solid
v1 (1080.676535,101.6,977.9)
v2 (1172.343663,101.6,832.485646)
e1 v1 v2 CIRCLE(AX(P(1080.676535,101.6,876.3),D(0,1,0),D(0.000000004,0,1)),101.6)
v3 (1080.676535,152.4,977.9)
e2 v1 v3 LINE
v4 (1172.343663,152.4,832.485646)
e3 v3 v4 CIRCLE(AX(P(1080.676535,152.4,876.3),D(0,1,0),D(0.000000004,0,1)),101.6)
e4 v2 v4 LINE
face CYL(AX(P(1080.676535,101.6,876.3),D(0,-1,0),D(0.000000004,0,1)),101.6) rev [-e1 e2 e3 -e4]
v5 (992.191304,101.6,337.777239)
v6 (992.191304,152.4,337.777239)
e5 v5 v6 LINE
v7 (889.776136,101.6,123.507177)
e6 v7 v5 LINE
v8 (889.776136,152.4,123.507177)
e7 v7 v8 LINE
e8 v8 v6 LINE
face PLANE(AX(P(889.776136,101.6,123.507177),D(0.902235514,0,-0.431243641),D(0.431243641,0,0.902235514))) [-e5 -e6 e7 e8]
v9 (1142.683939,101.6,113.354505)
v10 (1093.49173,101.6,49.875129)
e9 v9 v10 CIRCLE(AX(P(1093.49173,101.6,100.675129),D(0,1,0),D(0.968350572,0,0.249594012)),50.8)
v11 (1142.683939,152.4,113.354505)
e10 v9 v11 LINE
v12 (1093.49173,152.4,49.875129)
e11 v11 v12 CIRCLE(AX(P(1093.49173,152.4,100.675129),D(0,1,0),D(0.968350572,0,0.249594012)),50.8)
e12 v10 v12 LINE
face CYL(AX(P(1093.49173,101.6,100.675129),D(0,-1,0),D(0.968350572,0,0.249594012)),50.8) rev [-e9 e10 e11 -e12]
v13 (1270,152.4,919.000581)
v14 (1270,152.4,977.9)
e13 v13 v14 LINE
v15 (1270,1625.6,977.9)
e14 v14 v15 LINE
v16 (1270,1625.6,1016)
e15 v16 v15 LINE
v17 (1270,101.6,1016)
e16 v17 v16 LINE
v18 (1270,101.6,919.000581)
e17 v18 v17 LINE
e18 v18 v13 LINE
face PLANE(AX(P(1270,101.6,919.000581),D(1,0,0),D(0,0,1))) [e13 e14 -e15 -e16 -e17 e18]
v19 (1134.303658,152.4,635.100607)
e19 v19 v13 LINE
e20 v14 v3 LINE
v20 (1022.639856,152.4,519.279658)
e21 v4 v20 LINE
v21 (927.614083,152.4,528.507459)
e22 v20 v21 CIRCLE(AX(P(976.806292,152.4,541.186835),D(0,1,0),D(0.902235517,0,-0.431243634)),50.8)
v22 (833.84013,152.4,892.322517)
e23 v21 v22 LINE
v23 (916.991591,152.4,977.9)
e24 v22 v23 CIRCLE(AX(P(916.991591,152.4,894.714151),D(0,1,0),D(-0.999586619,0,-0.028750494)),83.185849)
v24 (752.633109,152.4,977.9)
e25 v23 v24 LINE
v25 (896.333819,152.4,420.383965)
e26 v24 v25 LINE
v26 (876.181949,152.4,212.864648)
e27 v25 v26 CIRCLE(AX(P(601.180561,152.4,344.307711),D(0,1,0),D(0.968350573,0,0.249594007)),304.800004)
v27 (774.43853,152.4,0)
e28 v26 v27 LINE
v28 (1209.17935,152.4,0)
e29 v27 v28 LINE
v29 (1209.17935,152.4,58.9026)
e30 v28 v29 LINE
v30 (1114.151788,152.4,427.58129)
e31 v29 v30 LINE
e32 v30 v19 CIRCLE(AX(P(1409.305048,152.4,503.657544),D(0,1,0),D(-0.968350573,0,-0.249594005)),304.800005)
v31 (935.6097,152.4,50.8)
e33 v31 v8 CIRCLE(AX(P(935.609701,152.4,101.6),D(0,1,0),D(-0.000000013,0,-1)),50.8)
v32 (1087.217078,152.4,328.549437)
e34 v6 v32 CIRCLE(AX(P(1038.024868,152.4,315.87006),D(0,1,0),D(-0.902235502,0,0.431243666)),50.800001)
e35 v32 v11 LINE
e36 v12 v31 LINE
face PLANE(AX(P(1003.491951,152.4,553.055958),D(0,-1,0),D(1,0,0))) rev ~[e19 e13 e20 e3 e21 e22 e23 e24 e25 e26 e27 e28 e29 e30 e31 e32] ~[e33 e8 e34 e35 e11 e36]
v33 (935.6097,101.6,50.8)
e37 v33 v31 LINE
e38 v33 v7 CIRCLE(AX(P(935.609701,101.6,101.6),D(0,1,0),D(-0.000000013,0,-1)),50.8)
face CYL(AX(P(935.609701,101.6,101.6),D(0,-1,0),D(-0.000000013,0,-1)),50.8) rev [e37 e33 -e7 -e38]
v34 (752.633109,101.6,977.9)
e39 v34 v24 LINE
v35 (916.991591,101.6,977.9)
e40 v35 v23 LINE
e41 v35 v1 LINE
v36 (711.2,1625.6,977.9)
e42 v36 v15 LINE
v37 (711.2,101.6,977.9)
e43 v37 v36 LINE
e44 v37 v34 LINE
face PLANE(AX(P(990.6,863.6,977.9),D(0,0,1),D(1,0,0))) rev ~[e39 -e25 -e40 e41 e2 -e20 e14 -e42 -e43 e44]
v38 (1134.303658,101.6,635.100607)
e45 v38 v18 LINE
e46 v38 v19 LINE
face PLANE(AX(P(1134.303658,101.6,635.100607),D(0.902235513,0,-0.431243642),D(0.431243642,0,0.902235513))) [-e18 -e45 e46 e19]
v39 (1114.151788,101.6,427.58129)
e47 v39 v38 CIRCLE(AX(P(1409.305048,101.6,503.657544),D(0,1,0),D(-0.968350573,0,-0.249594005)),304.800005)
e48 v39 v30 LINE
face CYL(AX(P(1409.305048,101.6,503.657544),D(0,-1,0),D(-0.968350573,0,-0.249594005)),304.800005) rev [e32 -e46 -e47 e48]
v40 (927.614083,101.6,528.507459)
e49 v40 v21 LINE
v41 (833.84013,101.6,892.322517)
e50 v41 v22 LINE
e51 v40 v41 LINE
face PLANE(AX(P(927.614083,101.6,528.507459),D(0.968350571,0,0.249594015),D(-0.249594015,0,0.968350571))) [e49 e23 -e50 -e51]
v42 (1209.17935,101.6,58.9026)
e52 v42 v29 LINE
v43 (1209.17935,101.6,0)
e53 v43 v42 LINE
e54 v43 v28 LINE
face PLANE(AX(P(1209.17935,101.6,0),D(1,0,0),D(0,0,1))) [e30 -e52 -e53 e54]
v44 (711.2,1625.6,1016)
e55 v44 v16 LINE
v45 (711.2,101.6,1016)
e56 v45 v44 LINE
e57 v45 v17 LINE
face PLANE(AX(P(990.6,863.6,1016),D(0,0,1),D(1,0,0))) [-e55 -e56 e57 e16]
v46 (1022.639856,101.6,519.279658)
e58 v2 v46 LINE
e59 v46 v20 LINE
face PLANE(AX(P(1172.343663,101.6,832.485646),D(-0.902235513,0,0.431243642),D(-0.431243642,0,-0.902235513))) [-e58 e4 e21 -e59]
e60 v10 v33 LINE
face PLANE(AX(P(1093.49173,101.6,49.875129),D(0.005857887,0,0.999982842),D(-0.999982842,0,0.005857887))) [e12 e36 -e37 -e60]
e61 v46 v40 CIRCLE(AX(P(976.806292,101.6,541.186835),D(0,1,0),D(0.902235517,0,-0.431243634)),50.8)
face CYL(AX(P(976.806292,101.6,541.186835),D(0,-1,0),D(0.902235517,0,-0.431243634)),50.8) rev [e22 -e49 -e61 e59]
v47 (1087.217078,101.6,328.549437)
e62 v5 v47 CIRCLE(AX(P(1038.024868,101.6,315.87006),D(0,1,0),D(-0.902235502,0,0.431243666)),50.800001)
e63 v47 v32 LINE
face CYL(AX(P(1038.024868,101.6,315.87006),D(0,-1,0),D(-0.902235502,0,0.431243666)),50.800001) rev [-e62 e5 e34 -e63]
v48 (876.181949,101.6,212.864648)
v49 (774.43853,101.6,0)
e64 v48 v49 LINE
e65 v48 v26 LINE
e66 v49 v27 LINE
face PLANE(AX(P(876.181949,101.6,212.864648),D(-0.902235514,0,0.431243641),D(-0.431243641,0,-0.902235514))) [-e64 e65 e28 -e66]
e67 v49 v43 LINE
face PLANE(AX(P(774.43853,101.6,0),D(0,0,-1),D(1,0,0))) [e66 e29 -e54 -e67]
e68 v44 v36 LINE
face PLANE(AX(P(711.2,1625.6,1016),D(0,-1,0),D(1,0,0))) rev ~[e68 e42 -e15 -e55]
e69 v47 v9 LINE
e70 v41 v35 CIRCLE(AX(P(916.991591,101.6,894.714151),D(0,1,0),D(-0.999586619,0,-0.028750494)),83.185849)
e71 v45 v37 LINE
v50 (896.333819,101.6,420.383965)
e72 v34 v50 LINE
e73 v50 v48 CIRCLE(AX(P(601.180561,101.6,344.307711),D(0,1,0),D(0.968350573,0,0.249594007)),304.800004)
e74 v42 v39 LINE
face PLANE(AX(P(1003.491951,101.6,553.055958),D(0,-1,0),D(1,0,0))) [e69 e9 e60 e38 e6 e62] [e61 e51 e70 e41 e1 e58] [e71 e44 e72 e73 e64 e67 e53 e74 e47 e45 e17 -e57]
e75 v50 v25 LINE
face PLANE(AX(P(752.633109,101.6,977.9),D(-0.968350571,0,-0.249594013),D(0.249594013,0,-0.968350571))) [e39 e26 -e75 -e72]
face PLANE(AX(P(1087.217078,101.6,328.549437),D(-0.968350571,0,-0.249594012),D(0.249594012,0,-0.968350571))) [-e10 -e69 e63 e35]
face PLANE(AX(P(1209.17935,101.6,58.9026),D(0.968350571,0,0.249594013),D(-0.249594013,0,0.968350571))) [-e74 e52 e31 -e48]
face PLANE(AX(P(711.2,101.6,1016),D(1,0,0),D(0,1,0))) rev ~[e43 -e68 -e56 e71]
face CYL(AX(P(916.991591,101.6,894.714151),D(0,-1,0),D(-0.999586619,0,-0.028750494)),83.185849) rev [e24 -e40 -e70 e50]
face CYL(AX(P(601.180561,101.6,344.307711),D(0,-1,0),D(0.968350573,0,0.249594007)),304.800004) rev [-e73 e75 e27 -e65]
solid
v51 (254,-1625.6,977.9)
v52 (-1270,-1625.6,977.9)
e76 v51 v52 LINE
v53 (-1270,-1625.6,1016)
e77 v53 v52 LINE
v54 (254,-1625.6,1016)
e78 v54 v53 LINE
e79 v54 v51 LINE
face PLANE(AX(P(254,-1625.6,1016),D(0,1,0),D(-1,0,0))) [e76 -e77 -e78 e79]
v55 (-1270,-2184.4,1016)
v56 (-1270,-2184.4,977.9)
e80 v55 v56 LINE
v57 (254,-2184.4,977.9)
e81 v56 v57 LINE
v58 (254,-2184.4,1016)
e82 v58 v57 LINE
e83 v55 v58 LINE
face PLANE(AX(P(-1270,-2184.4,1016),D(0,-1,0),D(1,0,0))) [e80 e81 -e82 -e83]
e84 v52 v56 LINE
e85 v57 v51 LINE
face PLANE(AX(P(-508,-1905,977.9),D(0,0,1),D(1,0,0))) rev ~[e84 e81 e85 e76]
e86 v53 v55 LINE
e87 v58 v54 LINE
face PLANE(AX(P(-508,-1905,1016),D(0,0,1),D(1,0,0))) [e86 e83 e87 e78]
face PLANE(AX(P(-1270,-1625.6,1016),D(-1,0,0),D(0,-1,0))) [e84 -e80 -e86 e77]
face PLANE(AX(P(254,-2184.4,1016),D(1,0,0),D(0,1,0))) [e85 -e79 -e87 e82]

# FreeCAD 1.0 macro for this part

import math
import FreeCAD as App
import Part
import Sketcher
from FreeCAD import Vector
Q = App.Units.Quantity

doc = App.newDocument("Part")
body = doc.addObject("PartDesign::Body", "Body")
body.AllowCompound = True

# Sketch on XY plane
sketch1 = body.newObject("Sketcher::SketchObject", "Sketch")
sketch1.AttachmentSupport = (doc.getObject("XY_Plane"), [""])
sketch1.MapMode = "FlatFace"
sketch1.AttachmentOffset = App.Placement(Vector(0, 0, 40 * 25.4), App.Rotation())
sketch1.addGeometry([
    Part.LineSegment(Vector(254, -1625.6, 0), Vector(-1270, -1625.6, 0)),  # 0
    Part.LineSegment(Vector(-1270, -1625.6, 0), Vector(-1270, -2184.4, 0)),  # 1
    Part.LineSegment(Vector(-1270, -2184.4, 0), Vector(254, -2184.4, 0)),  # 2
    Part.LineSegment(Vector(254, -2184.4, 0), Vector(254, -1625.6, 0)),  # 3
    Part.LineSegment(Vector(711.2, 1625.6, 0), Vector(711.2, 101.6, 0)),  # 4
    Part.LineSegment(Vector(711.2, 101.6, 0), Vector(1270, 101.6, 0)),  # 5
    Part.LineSegment(Vector(1270, 101.6, 0), Vector(1270, 1625.6, 0)),  # 6
    Part.LineSegment(Vector(1270, 1625.6, 0), Vector(711.2, 1625.6, 0)),  # 7
], False)
sketch1.addConstraint([
    Sketcher.Constraint("Coincident", 0, 2, 1, 1),
    Sketcher.Constraint("Coincident", 1, 2, 2, 1),
    Sketcher.Constraint("Coincident", 2, 2, 3, 1),
    Sketcher.Constraint("Coincident", 3, 2, 0, 1),
    Sketcher.Constraint("Coincident", 4, 2, 5, 1),
    Sketcher.Constraint("Coincident", 5, 2, 6, 1),
    Sketcher.Constraint("Coincident", 6, 2, 7, 1),
    Sketcher.Constraint("Coincident", 7, 2, 4, 1),
    Sketcher.Constraint("Horizontal", 0),
    Sketcher.Constraint("Vertical", 1),
    Sketcher.Constraint("Horizontal", 2),
    Sketcher.Constraint("Vertical", 3),
    Sketcher.Constraint("Vertical", 4),
    Sketcher.Constraint("Horizontal", 5),
    Sketcher.Constraint("Vertical", 6),
    Sketcher.Constraint("Horizontal", 7),
    Sketcher.Constraint("Symmetric", 0, 2, 6, 2, -1, 1),
    Sketcher.Constraint("Equal", 7, 1),
    Sketcher.Constraint("Equal", 2, 4),
    Sketcher.Constraint("DistanceX", 0, 2, 0, 1, Q("60 in")),
    Sketcher.Constraint("DistanceX", 5, 1, 5, 2, Q("22 in")),
    Sketcher.Constraint("DistanceX", 0, 2, -1, 1, Q("50 in")),
    Sketcher.Constraint("DistanceY", 0, 2, -1, 1, Q("64 in")),
])
pad1 = body.newObject("PartDesign::Pad", "Pad")
pad1.Profile = sketch1
pad1.Length = Q("1.5 in")
pad1.Reversed = True

# Sketch on XZ plane
sketch2 = body.newObject("Sketcher::SketchObject", "Sketch001")
sketch2.AttachmentSupport = (doc.getObject("XZ_Plane"), [""])
sketch2.MapMode = "FlatFace"
sketch2.AttachmentOffset = App.Placement(Vector(0, 0, -4 * 25.4), App.Rotation())
sketch2.addGeometry([
    Part.LineSegment(Vector(774.43853, 0, 0), Vector(1209.17935, 0, 0)),  # 0
    Part.LineSegment(Vector(1209.17935, 0, 0), Vector(1209.17935, 58.9026, 0)),  # 1
    Part.LineSegment(Vector(1209.17935, 58.9026, 0), Vector(1114.151788, 427.58129, 0)),  # 2
    Part.ArcOfCircle(Part.Circle(Vector(1409.305048, 503.657544, 0), Vector(0, 0, 1), 304.800005), math.radians(154.45349), math.radians(194.453489)),  # 3
    Part.LineSegment(Vector(1134.303658, 635.100607, 0), Vector(1270, 919.000581, 0)),  # 4
    Part.LineSegment(Vector(1270, 919.000581, 0), Vector(1270, 977.9, 0)),  # 5
    Part.LineSegment(Vector(1270, 977.9, 0), Vector(1080.676535, 977.9, 0)),  # 6
    Part.ArcOfCircle(Part.Circle(Vector(1080.676535, 876.3, 0), Vector(0, 0, 1), 101.6), math.radians(-25.546511), math.radians(90)),  # 7
    Part.LineSegment(Vector(1172.343663, 832.485646, 0), Vector(1022.639856, 519.279658, 0)),  # 8
    Part.ArcOfCircle(Part.Circle(Vector(976.806292, 541.186835, 0), Vector(0, 0, 1), 50.8), math.radians(-165.546511), math.radians(-25.54651)),  # 9
    Part.LineSegment(Vector(927.614083, 528.507459, 0), Vector(833.84013, 892.322517, 0)),  # 10
    Part.ArcOfCircle(Part.Circle(Vector(916.991591, 894.714151, 0), Vector(0, 0, 1), 83.185849), math.radians(90), math.radians(181.647509)),  # 11
    Part.LineSegment(Vector(916.991591, 977.9, 0), Vector(752.633109, 977.9, 0)),  # 12
    Part.LineSegment(Vector(752.633109, 977.9, 0), Vector(896.333819, 420.383965, 0)),  # 13
    Part.ArcOfCircle(Part.Circle(Vector(601.180561, 344.307711, 0), Vector(0, 0, 1), 304.800004), math.radians(-25.546511), math.radians(14.453489)),  # 14
    Part.LineSegment(Vector(876.181949, 212.864648, 0), Vector(774.43853, 0, 0)),  # 15
    Part.ArcOfCircle(Part.Circle(Vector(1038.024868, 315.87006, 0), Vector(0, 0, 1), 50.800001), math.radians(14.45349), math.radians(154.453488)),  # 16
    Part.LineSegment(Vector(1087.217078, 328.549437, 0), Vector(1142.683939, 113.354505, 0)),  # 17
    Part.ArcOfCircle(Part.Circle(Vector(1093.49173, 100.675129, 0), Vector(0, 0, 1), 50.8), math.radians(-90), math.radians(14.453489)),  # 18
    Part.LineSegment(Vector(1093.49173, 49.875129, 0), Vector(935.6097, 50.8, 0)),  # 19
    Part.ArcOfCircle(Part.Circle(Vector(935.609701, 101.6, 0), Vector(0, 0, 1), 50.8), math.radians(154.45349), math.radians(269.999999)),  # 20
    Part.LineSegment(Vector(889.776136, 123.507177, 0), Vector(992.191304, 337.777239, 0)),  # 21
], False)
sketch2.addConstraint([
    Sketcher.Constraint("Coincident", 0, 2, 1, 1),
    Sketcher.Constraint("Coincident", 1, 2, 2, 1),
    Sketcher.Constraint("Tangent", 2, 2, 3, 2),
    Sketcher.Constraint("Tangent", 3, 1, 4, 1),
    Sketcher.Constraint("Coincident", 4, 2, 5, 1),
    Sketcher.Constraint("Coincident", 5, 2, 6, 1),
    Sketcher.Constraint("Tangent", 6, 2, 7, 2),
    Sketcher.Constraint("Tangent", 7, 1, 8, 1),
    Sketcher.Constraint("Tangent", 8, 2, 9, 2),
    Sketcher.Constraint("Tangent", 9, 1, 10, 1),
    Sketcher.Constraint("Coincident", 10, 2, 11, 2),
    Sketcher.Constraint("Tangent", 11, 1, 12, 1),
    Sketcher.Constraint("Coincident", 12, 2, 13, 1),
    Sketcher.Constraint("Tangent", 13, 2, 14, 2),
    Sketcher.Constraint("Tangent", 14, 1, 15, 1),
    Sketcher.Constraint("Coincident", 15, 2, 0, 1),
    Sketcher.Constraint("Tangent", 16, 1, 17, 1),
    Sketcher.Constraint("Tangent", 17, 2, 18, 2),
    Sketcher.Constraint("Coincident", 18, 1, 19, 1),
    Sketcher.Constraint("Coincident", 19, 2, 20, 2),
    Sketcher.Constraint("Tangent", 20, 1, 21, 1),
    Sketcher.Constraint("Tangent", 21, 2, 16, 2),
    Sketcher.Constraint("Horizontal", 0),
    Sketcher.Constraint("Vertical", 1),
    Sketcher.Constraint("Vertical", 5),
    Sketcher.Constraint("Horizontal", 6),
    Sketcher.Constraint("Horizontal", 12),
    Sketcher.Constraint("Equal", 3, 14),
    Sketcher.Constraint("Equal", 9, 16),
    Sketcher.Constraint("Equal", 16, 18),
    Sketcher.Constraint("Equal", 18, 20),
    Sketcher.Constraint("PointOnObject", 0, 2, -1),
    Sketcher.Constraint("Parallel", 4, 8),
    Sketcher.Constraint("Parallel", 2, 10),
    Sketcher.Constraint("Parallel", 10, 13),
    Sketcher.Constraint("Parallel", 8, 15),
    Sketcher.Constraint("Parallel", 13, 17),
    Sketcher.Constraint("Parallel", 15, 21),
    Sketcher.Constraint("Horizontal", 6, 2, 11, 1),
    Sketcher.Constraint("Vertical", 20, 3, 19, 2),
    Sketcher.Constraint("Radius", 7, Q("4 in")),
    Sketcher.Constraint("Radius", 9, Q("2 in")),
    Sketcher.Constraint("Radius", 14, Q("12.0000001 in")),
    Sketcher.Constraint("DistanceY", -1, 1, 20, 3, Q("4 in")),
    Sketcher.Constraint("DistanceX", -1, 1, 4, 2, Q("50 in")),
    Sketcher.Constraint("DistanceY", -1, 1, 7, 3, Q("34.5 in")),
    Sketcher.Constraint("DistanceY", 1, 1, 1, 2, Q("2.319 in")),
    Sketcher.Constraint("Radius", 11, Q("83.185849 mm")),
    Sketcher.Constraint("Distance", 4, Q("12.3883001 in")),
    Sketcher.Constraint("DistanceY", 7, 1, 4, 2, Q("3.4060998 in")),
    Sketcher.Constraint("DistanceX", 0, 1, 0, 2, Q("434.74082 mm")),
    Sketcher.Constraint("DistanceX", 12, 2, 12, 1, Q("164.358482 mm")),
    Sketcher.Constraint("DistanceY", 5, 1, 5, 2, Q("58.899419 mm")),
    Sketcher.Constraint("DistanceX", -1, 1, 20, 3, Q("935.609701 mm")),
    Sketcher.Constraint("DistanceX", 11, 3, 9, 3, Q("59.814701 mm")),
    Sketcher.Constraint("DistanceY", 16, 3, 9, 1, Q("212.637399 mm")),
    Sketcher.Constraint("DistanceX", 15, 2, 18, 3, Q("319.0532 mm")),
    Sketcher.Constraint("Distance", 2, Q("380.728531 mm")),
    Sketcher.Constraint("Distance", 8, Q("347.14438 mm")),
    Sketcher.Constraint("Distance", 19, Q("157.884739 mm")),
    Sketcher.Constraint("DistanceX", 6, 2, 6, 1, Q("189.323465 mm")),
])
pad2 = body.newObject("PartDesign::Pad", "Pad001")
pad2.Profile = sketch2
pad2.Length = Q("2 in")
pad2.Reversed = True

doc.recompute()
